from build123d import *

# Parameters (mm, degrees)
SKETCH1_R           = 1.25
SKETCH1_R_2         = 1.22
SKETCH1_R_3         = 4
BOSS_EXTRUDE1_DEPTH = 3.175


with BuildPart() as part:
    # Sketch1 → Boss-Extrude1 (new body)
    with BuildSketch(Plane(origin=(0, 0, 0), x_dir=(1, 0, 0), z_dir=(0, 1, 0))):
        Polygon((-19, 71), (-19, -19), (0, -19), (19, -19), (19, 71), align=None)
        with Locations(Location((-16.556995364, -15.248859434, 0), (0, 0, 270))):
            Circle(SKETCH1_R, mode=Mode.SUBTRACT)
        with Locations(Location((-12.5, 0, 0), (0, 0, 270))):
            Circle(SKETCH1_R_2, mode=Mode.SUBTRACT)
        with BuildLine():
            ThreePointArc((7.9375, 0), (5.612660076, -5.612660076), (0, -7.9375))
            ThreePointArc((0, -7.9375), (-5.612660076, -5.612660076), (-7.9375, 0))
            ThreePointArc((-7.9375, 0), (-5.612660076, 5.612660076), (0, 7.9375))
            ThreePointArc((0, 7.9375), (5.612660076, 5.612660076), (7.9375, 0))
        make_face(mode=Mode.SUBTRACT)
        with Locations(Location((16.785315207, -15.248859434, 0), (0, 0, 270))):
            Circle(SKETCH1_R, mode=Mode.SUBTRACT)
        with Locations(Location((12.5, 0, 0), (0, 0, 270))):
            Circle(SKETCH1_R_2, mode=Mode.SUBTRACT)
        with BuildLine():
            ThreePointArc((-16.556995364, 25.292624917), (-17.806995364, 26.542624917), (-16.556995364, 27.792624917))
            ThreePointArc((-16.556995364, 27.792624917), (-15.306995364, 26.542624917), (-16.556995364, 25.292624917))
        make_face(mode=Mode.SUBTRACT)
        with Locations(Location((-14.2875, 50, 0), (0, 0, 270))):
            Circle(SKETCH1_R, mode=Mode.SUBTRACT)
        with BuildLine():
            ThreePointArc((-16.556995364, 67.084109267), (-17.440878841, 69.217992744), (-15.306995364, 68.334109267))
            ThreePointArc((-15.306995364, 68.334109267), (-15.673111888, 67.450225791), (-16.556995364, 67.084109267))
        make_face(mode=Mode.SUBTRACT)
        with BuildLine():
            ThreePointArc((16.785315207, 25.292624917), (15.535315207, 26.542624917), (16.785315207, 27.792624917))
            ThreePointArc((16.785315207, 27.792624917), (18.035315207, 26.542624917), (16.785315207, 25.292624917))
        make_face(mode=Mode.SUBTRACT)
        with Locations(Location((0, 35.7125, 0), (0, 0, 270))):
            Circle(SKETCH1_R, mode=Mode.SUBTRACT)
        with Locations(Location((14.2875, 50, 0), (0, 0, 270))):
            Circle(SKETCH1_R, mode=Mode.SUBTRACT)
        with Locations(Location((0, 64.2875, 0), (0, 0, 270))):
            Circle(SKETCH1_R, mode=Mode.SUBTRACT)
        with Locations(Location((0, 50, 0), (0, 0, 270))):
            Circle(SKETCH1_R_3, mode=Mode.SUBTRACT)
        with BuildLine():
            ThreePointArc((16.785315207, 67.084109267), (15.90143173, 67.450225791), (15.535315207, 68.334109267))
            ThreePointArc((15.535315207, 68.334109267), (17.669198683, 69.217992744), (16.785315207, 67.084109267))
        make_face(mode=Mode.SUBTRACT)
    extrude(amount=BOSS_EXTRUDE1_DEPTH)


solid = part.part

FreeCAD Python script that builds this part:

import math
import FreeCAD as App
import Part
import Sketcher
Q = App.Units.Quantity


def add_polygon(sketch, points):
    """Adds a closed chain of lines whose ends are joined by coincident constraints."""
    first, n = sketch.GeometryCount, len(points)
    for a, b in zip(points, points[1:] + points[:1]):
        sketch.addGeometry(Part.LineSegment(App.Vector(*a, 0), App.Vector(*b, 0)), False)
    for i in range(n):
        sketch.addConstraint(Sketcher.Constraint("Coincident", first + i, 2, first + (i + 1) % n, 1))

doc = App.newDocument("Part")
body = doc.addObject("PartDesign::Body", "Body")

# Sketch on XZ plane
sketch1 = body.newObject("Sketcher::SketchObject", "Sketch")
sketch1.AttachmentSupport = (doc.getObject("XZ_Plane"), [""])
sketch1.MapMode = "FlatFace"
add_polygon(sketch1, [(-19, -71), (-19, 19), (19, 19), (19, -71)])  # lines 0-3
sketch1.addGeometry(Part.Circle(App.Vector(-16.556995, 15.248859, 0), App.Vector(0, 0, 1), 1.25), False)  # 4
sketch1.addGeometry(Part.Circle(App.Vector(-12.5, 0, 0), App.Vector(0, 0, 1), 1.22), False)  # 5
sketch1.addGeometry(Part.ArcOfCircle(Part.Circle(App.Vector(0, 0, 0), App.Vector(0, 0, 1), 7.9375), math.radians(-90), math.radians(0)), False)  # 6
sketch1.addGeometry(Part.ArcOfCircle(Part.Circle(App.Vector(0, 0, 0), App.Vector(0, 0, 1), 7.9375), math.radians(0), math.radians(90)), False)  # 7
sketch1.addGeometry(Part.ArcOfCircle(Part.Circle(App.Vector(0, 0, 0), App.Vector(0, 0, 1), 7.9375), math.radians(90), math.radians(180)), False)  # 8
sketch1.addGeometry(Part.ArcOfCircle(Part.Circle(App.Vector(0, 0, 0), App.Vector(0, 0, 1), 7.9375), math.radians(180), math.radians(270)), False)  # 9
sketch1.addGeometry(Part.Circle(App.Vector(16.785315, 15.248859, 0), App.Vector(0, 0, 1), 1.25), False)  # 10
sketch1.addGeometry(Part.Circle(App.Vector(12.5, 0, 0), App.Vector(0, 0, 1), 1.22), False)  # 11
sketch1.addGeometry(Part.Circle(App.Vector(-16.556995, -26.542625, 0), App.Vector(0, 0, 1), 1.25), False)  # 12
sketch1.addGeometry(Part.Circle(App.Vector(0, -35.7125, 0), App.Vector(0, 0, 1), 1.25), False)  # 13
sketch1.addGeometry(Part.Circle(App.Vector(-14.2875, -50, 0), App.Vector(0, 0, 1), 1.25), False)  # 14
sketch1.addGeometry(Part.ArcOfCircle(Part.Circle(App.Vector(-16.556995, -68.334109, 0), App.Vector(0, 0, 1), 1.25), math.radians(0), math.radians(90)), False)  # 15
sketch1.addGeometry(Part.ArcOfCircle(Part.Circle(App.Vector(-16.556995, -68.334109, 0), App.Vector(0, 0, 1), 1.25), math.radians(90), math.radians(360)), False)  # 16
sketch1.addGeometry(Part.Circle(App.Vector(0, -50, 0), App.Vector(0, 0, 1), 4), False)  # 17
sketch1.addGeometry(Part.Circle(App.Vector(0, -64.2875, 0), App.Vector(0, 0, 1), 1.25), False)  # 18
sketch1.addGeometry(Part.Circle(App.Vector(16.785315, -26.542625, 0), App.Vector(0, 0, 1), 1.25), False)  # 19
sketch1.addGeometry(Part.Circle(App.Vector(14.2875, -50, 0), App.Vector(0, 0, 1), 1.25), False)  # 20
sketch1.addGeometry(Part.ArcOfCircle(Part.Circle(App.Vector(16.785315, -68.334109, 0), App.Vector(0, 0, 1), 1.25), math.radians(180), math.radians(450)), False)  # 21
sketch1.addGeometry(Part.ArcOfCircle(Part.Circle(App.Vector(16.785315, -68.334109, 0), App.Vector(0, 0, 1), 1.25), math.radians(90), math.radians(180)), False)  # 22
sketch1.addConstraint(Sketcher.Constraint("Tangent", 6, 2, 7, 1))
sketch1.addConstraint(Sketcher.Constraint("Tangent", 7, 2, 8, 1))
sketch1.addConstraint(Sketcher.Constraint("Tangent", 8, 2, 9, 1))
sketch1.addConstraint(Sketcher.Constraint("Tangent", 9, 2, 6, 1))
sketch1.addConstraint(Sketcher.Constraint("Tangent", 15, 1, 16, 2))
sketch1.addConstraint(Sketcher.Constraint("Coincident", 16, 1, 15, 2))
sketch1.addConstraint(Sketcher.Constraint("Tangent", 21, 1, 22, 2))
sketch1.addConstraint(Sketcher.Constraint("Coincident", 22, 1, 21, 2))
sketch1.addConstraint(Sketcher.Constraint("Vertical", 0))
sketch1.addConstraint(Sketcher.Constraint("Horizontal", 1))
sketch1.addConstraint(Sketcher.Constraint("Vertical", 2))
sketch1.addConstraint(Sketcher.Constraint("Horizontal", 3))
sketch1.addConstraint(Sketcher.Constraint("Coincident", 6, 3, -1, 1))
sketch1.addConstraint(Sketcher.Constraint("Equal", 6, 7))
sketch1.addConstraint(Sketcher.Constraint("Equal", 4, 10))
sketch1.addConstraint(Sketcher.Constraint("Equal", 5, 11))
sketch1.addConstraint(Sketcher.Constraint("Equal", 10, 12))
sketch1.addConstraint(Sketcher.Constraint("Equal", 12, 13))
sketch1.addConstraint(Sketcher.Constraint("Equal", 13, 14))
sketch1.addConstraint(Sketcher.Constraint("Equal", 14, 15))
sketch1.addConstraint(Sketcher.Constraint("Equal", 16, 18))
sketch1.addConstraint(Sketcher.Constraint("Equal", 18, 19))
sketch1.addConstraint(Sketcher.Constraint("Equal", 19, 20))
sketch1.addConstraint(Sketcher.Constraint("Equal", 20, 21))
sketch1.addConstraint(Sketcher.Constraint("Symmetric", 5, 3, 11, 3, -1, 1))
sketch1.addConstraint(Sketcher.Constraint("Symmetric", 14, 3, 20, 3, -2))
sketch1.addConstraint(Sketcher.Constraint("PointOnObject", 5, 3, -1))
sketch1.addConstraint(Sketcher.Constraint("PointOnObject", 13, 3, -2))
sketch1.addConstraint(Sketcher.Constraint("PointOnObject", 17, 3, -2))
sketch1.addConstraint(Sketcher.Constraint("PointOnObject", 18, 3, -2))
sketch1.addConstraint(Sketcher.Constraint("PointOnObject", 6, 2, -1))
sketch1.addConstraint(Sketcher.Constraint("PointOnObject", 7, 2, -2))
sketch1.addConstraint(Sketcher.Constraint("PointOnObject", 8, 2, -1))
sketch1.addConstraint(Sketcher.Constraint("PointOnObject", 9, 2, -2))
sketch1.addConstraint(Sketcher.Constraint("Horizontal", 4, 3, 10, 3))
sketch1.addConstraint(Sketcher.Constraint("Horizontal", 14, 3, 17, 3))
sketch1.addConstraint(Sketcher.Constraint("Horizontal", 12, 3, 19, 3))
sketch1.addConstraint(Sketcher.Constraint("Horizontal", 16, 3, 21, 3))
sketch1.addConstraint(Sketcher.Constraint("Horizontal", 22, 3, 15, 1))
sketch1.addConstraint(Sketcher.Constraint("Horizontal", 15, 1, 21, 1))
sketch1.addConstraint(Sketcher.Constraint("Vertical", 4, 3, 12, 3))
sketch1.addConstraint(Sketcher.Constraint("Vertical", 12, 3, 15, 3))
sketch1.addConstraint(Sketcher.Constraint("Vertical", 10, 3, 19, 3))
sketch1.addConstraint(Sketcher.Constraint("Vertical", 19, 3, 21, 3))
sketch1.addConstraint(Sketcher.Constraint("Vertical", 15, 3, 16, 1))
sketch1.addConstraint(Sketcher.Constraint("Vertical", 21, 3, 22, 1))
sketch1.addConstraint(Sketcher.Constraint("Diameter", 17, Q("8 mm")))
sketch1.addConstraint(Sketcher.Constraint("Diameter", 4, Q("2.5 mm")))
sketch1.addConstraint(Sketcher.Constraint("Diameter", 5, Q("2.44 mm")))
sketch1.addConstraint(Sketcher.Constraint("DistanceX", 1, 1, 1, 2, Q("38 mm")))
sketch1.addConstraint(Sketcher.Constraint("DistanceY", 0, 1, 0, 2, Q("90 mm")))
sketch1.addConstraint(Sketcher.Constraint("DistanceY", 14, 3, -1, 1, Q("50 mm")))
sketch1.addConstraint(Sketcher.Constraint("DistanceX", 0, 2, -1, 1, Q("19 mm")))
sketch1.addConstraint(Sketcher.Constraint("DistanceY", -1, 1, 0, 2, Q("19 mm")))
sketch1.addConstraint(Sketcher.Constraint("DistanceX", 5, 3, -1, 1, Q("12.5 mm")))
sketch1.addConstraint(Sketcher.Constraint("Radius", 6, Q("7.9375 mm")))
sketch1.addConstraint(Sketcher.Constraint("DistanceY", 18, 3, 13, 3, Q("28.575 mm")))
sketch1.addConstraint(Sketcher.Constraint("DistanceX", 14, 3, 20, 3, Q("28.575 mm")))
sketch1.addConstraint(Sketcher.Constraint("DistanceY", 13, 3, -1, 1, Q("35.7125 mm")))
sketch1.addConstraint(Sketcher.Constraint("DistanceY", -1, 1, 4, 3, Q("15.248859 mm")))
sketch1.addConstraint(Sketcher.Constraint("DistanceY", 15, 3, -1, 1, Q("68.334109 mm")))
sketch1.addConstraint(Sketcher.Constraint("DistanceX", 16, 3, 21, 3, Q("33.342311 mm")))
sketch1.addConstraint(Sketcher.Constraint("DistanceX", 4, 3, -1, 1, Q("16.556995 mm")))
sketch1.addConstraint(Sketcher.Constraint("DistanceY", 12, 3, -1, 1, Q("26.542625 mm")))
pad1 = body.newObject("PartDesign::Pad", "Pad")
pad1.Profile = sketch1
pad1.Length = 3.175
pad1.Reversed = True

doc.recompute()
